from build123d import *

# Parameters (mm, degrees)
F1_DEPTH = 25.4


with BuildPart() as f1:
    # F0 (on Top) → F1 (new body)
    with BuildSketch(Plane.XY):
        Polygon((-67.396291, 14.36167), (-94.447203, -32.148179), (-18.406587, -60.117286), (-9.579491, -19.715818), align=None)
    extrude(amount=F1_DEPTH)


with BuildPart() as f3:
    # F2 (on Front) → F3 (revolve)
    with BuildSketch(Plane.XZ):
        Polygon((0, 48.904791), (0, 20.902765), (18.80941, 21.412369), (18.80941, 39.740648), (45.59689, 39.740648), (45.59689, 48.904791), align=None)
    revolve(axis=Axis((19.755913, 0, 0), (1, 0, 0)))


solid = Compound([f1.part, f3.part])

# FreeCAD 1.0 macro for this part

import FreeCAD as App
import Part
import Sketcher
from FreeCAD import Vector
Q = App.Units.Quantity

doc = App.newDocument("Part")
body = doc.addObject("PartDesign::Body", "Body")

# Sketch on XY plane
sketch1 = doc.addObject("Sketcher::SketchObject", "Sketch")
body.addObject(sketch1)
sketch1.AttachmentSupport = (doc.XY_Plane, [""])
sketch1.MapMode = "FlatFace"
sketch1.addGeometry([
    Part.LineSegment(Vector(-67, 14, 0), Vector(-94, -32, 0)),
    Part.LineSegment(Vector(-94, -32, 0), Vector(-18, -60, 0)),
    Part.LineSegment(Vector(-18, -60, 0), Vector(-10, -20, 0)),
    Part.LineSegment(Vector(-10, -20, 0), Vector(-67, 14, 0)),
], False)
sketch1.addConstraint([
    Sketcher.Constraint("Coincident", 0, 2, 1, 1),
    Sketcher.Constraint("Coincident", 1, 2, 2, 1),
    Sketcher.Constraint("Coincident", 2, 2, 3, 1),
    Sketcher.Constraint("Coincident", 3, 2, 0, 1),
    Sketcher.Constraint("DistanceX", 3, 2, 2, 2, Q("57.8168 mm")),
    Sketcher.Constraint("Distance", 0, Q("53.804441 mm")),
    Sketcher.Constraint("Distance", 1, Q("81.02127 mm")),
    Sketcher.Constraint("Distance", 2, Q("41.354519 mm")),
    Sketcher.Constraint("DistanceY", 0, 2, -1, 1, Q("32.148179 mm")),
    Sketcher.Constraint("DistanceX", 2, 2, -1, 1, Q("9.579491 mm")),
    Sketcher.Constraint("DistanceY", -1, 1, 3, 2, Q("14.36167 mm")),
    Sketcher.Constraint("DistanceY", 0, 2, 2, 2, Q("12.432361 mm")),
])
pad1 = doc.addObject("PartDesign::Pad", "Pad")
body.addObject(pad1)
pad1.Profile = sketch1
pad1.Length = Q("1 in")
body2 = doc.addObject("PartDesign::Body", "Body001")

# Sketch on XZ plane
sketch2 = doc.addObject("Sketcher::SketchObject", "Sketch001")
body2.addObject(sketch2)
sketch2.AttachmentSupport = (doc.getObject("XZ_Plane001"), [""])
sketch2.MapMode = "FlatFace"
sketch2.addGeometry([
    Part.LineSegment(Vector(0, 49, 0), Vector(0, 21, 0)),  # 0
    Part.LineSegment(Vector(0, 21, 0), Vector(19, 21, 0)),  # 1
    Part.LineSegment(Vector(19, 21, 0), Vector(19, 40, 0)),  # 2
    Part.LineSegment(Vector(19, 40, 0), Vector(46, 40, 0)),  # 3
    Part.LineSegment(Vector(46, 40, 0), Vector(46, 49, 0)),  # 4
    Part.LineSegment(Vector(46, 49, 0), Vector(0, 49, 0)),  # 5
], False)
sketch2.addConstraint([
    Sketcher.Constraint("Coincident", 0, 2, 1, 1),
    Sketcher.Constraint("Coincident", 1, 2, 2, 1),
    Sketcher.Constraint("Coincident", 2, 2, 3, 1),
    Sketcher.Constraint("Coincident", 3, 2, 4, 1),
    Sketcher.Constraint("Coincident", 4, 2, 5, 1),
    Sketcher.Constraint("Coincident", 5, 2, 0, 1),
    Sketcher.Constraint("Vertical", 0),
    Sketcher.Constraint("Vertical", 2),
    Sketcher.Constraint("Horizontal", 3),
    Sketcher.Constraint("Vertical", 4),
    Sketcher.Constraint("Horizontal", 5),
    Sketcher.Constraint("PointOnObject", 0, 2, -2),
    Sketcher.Constraint("DistanceX", 3, 1, 3, 2, Q("26.78748 mm")),
    Sketcher.Constraint("DistanceX", 5, 2, 5, 1, Q("45.59689 mm")),
    Sketcher.Constraint("DistanceY", 2, 1, 2, 2, Q("18.328279 mm")),
    Sketcher.Constraint("DistanceY", 0, 2, 0, 1, Q("28.002026 mm")),
    Sketcher.Constraint("DistanceY", 4, 1, 4, 2, Q("9.164143 mm")),
    Sketcher.Constraint("DistanceY", -1, 1, 1, 2, Q("21.412369 mm")),
])
revolution = doc.addObject("PartDesign::Revolution", "Revolution")
body2.addObject(revolution)
revolution.Profile = sketch2
revolution.ReferenceAxis = (sketch2, ["H_Axis"])
revolution.Angle = 360

doc.recompute()
